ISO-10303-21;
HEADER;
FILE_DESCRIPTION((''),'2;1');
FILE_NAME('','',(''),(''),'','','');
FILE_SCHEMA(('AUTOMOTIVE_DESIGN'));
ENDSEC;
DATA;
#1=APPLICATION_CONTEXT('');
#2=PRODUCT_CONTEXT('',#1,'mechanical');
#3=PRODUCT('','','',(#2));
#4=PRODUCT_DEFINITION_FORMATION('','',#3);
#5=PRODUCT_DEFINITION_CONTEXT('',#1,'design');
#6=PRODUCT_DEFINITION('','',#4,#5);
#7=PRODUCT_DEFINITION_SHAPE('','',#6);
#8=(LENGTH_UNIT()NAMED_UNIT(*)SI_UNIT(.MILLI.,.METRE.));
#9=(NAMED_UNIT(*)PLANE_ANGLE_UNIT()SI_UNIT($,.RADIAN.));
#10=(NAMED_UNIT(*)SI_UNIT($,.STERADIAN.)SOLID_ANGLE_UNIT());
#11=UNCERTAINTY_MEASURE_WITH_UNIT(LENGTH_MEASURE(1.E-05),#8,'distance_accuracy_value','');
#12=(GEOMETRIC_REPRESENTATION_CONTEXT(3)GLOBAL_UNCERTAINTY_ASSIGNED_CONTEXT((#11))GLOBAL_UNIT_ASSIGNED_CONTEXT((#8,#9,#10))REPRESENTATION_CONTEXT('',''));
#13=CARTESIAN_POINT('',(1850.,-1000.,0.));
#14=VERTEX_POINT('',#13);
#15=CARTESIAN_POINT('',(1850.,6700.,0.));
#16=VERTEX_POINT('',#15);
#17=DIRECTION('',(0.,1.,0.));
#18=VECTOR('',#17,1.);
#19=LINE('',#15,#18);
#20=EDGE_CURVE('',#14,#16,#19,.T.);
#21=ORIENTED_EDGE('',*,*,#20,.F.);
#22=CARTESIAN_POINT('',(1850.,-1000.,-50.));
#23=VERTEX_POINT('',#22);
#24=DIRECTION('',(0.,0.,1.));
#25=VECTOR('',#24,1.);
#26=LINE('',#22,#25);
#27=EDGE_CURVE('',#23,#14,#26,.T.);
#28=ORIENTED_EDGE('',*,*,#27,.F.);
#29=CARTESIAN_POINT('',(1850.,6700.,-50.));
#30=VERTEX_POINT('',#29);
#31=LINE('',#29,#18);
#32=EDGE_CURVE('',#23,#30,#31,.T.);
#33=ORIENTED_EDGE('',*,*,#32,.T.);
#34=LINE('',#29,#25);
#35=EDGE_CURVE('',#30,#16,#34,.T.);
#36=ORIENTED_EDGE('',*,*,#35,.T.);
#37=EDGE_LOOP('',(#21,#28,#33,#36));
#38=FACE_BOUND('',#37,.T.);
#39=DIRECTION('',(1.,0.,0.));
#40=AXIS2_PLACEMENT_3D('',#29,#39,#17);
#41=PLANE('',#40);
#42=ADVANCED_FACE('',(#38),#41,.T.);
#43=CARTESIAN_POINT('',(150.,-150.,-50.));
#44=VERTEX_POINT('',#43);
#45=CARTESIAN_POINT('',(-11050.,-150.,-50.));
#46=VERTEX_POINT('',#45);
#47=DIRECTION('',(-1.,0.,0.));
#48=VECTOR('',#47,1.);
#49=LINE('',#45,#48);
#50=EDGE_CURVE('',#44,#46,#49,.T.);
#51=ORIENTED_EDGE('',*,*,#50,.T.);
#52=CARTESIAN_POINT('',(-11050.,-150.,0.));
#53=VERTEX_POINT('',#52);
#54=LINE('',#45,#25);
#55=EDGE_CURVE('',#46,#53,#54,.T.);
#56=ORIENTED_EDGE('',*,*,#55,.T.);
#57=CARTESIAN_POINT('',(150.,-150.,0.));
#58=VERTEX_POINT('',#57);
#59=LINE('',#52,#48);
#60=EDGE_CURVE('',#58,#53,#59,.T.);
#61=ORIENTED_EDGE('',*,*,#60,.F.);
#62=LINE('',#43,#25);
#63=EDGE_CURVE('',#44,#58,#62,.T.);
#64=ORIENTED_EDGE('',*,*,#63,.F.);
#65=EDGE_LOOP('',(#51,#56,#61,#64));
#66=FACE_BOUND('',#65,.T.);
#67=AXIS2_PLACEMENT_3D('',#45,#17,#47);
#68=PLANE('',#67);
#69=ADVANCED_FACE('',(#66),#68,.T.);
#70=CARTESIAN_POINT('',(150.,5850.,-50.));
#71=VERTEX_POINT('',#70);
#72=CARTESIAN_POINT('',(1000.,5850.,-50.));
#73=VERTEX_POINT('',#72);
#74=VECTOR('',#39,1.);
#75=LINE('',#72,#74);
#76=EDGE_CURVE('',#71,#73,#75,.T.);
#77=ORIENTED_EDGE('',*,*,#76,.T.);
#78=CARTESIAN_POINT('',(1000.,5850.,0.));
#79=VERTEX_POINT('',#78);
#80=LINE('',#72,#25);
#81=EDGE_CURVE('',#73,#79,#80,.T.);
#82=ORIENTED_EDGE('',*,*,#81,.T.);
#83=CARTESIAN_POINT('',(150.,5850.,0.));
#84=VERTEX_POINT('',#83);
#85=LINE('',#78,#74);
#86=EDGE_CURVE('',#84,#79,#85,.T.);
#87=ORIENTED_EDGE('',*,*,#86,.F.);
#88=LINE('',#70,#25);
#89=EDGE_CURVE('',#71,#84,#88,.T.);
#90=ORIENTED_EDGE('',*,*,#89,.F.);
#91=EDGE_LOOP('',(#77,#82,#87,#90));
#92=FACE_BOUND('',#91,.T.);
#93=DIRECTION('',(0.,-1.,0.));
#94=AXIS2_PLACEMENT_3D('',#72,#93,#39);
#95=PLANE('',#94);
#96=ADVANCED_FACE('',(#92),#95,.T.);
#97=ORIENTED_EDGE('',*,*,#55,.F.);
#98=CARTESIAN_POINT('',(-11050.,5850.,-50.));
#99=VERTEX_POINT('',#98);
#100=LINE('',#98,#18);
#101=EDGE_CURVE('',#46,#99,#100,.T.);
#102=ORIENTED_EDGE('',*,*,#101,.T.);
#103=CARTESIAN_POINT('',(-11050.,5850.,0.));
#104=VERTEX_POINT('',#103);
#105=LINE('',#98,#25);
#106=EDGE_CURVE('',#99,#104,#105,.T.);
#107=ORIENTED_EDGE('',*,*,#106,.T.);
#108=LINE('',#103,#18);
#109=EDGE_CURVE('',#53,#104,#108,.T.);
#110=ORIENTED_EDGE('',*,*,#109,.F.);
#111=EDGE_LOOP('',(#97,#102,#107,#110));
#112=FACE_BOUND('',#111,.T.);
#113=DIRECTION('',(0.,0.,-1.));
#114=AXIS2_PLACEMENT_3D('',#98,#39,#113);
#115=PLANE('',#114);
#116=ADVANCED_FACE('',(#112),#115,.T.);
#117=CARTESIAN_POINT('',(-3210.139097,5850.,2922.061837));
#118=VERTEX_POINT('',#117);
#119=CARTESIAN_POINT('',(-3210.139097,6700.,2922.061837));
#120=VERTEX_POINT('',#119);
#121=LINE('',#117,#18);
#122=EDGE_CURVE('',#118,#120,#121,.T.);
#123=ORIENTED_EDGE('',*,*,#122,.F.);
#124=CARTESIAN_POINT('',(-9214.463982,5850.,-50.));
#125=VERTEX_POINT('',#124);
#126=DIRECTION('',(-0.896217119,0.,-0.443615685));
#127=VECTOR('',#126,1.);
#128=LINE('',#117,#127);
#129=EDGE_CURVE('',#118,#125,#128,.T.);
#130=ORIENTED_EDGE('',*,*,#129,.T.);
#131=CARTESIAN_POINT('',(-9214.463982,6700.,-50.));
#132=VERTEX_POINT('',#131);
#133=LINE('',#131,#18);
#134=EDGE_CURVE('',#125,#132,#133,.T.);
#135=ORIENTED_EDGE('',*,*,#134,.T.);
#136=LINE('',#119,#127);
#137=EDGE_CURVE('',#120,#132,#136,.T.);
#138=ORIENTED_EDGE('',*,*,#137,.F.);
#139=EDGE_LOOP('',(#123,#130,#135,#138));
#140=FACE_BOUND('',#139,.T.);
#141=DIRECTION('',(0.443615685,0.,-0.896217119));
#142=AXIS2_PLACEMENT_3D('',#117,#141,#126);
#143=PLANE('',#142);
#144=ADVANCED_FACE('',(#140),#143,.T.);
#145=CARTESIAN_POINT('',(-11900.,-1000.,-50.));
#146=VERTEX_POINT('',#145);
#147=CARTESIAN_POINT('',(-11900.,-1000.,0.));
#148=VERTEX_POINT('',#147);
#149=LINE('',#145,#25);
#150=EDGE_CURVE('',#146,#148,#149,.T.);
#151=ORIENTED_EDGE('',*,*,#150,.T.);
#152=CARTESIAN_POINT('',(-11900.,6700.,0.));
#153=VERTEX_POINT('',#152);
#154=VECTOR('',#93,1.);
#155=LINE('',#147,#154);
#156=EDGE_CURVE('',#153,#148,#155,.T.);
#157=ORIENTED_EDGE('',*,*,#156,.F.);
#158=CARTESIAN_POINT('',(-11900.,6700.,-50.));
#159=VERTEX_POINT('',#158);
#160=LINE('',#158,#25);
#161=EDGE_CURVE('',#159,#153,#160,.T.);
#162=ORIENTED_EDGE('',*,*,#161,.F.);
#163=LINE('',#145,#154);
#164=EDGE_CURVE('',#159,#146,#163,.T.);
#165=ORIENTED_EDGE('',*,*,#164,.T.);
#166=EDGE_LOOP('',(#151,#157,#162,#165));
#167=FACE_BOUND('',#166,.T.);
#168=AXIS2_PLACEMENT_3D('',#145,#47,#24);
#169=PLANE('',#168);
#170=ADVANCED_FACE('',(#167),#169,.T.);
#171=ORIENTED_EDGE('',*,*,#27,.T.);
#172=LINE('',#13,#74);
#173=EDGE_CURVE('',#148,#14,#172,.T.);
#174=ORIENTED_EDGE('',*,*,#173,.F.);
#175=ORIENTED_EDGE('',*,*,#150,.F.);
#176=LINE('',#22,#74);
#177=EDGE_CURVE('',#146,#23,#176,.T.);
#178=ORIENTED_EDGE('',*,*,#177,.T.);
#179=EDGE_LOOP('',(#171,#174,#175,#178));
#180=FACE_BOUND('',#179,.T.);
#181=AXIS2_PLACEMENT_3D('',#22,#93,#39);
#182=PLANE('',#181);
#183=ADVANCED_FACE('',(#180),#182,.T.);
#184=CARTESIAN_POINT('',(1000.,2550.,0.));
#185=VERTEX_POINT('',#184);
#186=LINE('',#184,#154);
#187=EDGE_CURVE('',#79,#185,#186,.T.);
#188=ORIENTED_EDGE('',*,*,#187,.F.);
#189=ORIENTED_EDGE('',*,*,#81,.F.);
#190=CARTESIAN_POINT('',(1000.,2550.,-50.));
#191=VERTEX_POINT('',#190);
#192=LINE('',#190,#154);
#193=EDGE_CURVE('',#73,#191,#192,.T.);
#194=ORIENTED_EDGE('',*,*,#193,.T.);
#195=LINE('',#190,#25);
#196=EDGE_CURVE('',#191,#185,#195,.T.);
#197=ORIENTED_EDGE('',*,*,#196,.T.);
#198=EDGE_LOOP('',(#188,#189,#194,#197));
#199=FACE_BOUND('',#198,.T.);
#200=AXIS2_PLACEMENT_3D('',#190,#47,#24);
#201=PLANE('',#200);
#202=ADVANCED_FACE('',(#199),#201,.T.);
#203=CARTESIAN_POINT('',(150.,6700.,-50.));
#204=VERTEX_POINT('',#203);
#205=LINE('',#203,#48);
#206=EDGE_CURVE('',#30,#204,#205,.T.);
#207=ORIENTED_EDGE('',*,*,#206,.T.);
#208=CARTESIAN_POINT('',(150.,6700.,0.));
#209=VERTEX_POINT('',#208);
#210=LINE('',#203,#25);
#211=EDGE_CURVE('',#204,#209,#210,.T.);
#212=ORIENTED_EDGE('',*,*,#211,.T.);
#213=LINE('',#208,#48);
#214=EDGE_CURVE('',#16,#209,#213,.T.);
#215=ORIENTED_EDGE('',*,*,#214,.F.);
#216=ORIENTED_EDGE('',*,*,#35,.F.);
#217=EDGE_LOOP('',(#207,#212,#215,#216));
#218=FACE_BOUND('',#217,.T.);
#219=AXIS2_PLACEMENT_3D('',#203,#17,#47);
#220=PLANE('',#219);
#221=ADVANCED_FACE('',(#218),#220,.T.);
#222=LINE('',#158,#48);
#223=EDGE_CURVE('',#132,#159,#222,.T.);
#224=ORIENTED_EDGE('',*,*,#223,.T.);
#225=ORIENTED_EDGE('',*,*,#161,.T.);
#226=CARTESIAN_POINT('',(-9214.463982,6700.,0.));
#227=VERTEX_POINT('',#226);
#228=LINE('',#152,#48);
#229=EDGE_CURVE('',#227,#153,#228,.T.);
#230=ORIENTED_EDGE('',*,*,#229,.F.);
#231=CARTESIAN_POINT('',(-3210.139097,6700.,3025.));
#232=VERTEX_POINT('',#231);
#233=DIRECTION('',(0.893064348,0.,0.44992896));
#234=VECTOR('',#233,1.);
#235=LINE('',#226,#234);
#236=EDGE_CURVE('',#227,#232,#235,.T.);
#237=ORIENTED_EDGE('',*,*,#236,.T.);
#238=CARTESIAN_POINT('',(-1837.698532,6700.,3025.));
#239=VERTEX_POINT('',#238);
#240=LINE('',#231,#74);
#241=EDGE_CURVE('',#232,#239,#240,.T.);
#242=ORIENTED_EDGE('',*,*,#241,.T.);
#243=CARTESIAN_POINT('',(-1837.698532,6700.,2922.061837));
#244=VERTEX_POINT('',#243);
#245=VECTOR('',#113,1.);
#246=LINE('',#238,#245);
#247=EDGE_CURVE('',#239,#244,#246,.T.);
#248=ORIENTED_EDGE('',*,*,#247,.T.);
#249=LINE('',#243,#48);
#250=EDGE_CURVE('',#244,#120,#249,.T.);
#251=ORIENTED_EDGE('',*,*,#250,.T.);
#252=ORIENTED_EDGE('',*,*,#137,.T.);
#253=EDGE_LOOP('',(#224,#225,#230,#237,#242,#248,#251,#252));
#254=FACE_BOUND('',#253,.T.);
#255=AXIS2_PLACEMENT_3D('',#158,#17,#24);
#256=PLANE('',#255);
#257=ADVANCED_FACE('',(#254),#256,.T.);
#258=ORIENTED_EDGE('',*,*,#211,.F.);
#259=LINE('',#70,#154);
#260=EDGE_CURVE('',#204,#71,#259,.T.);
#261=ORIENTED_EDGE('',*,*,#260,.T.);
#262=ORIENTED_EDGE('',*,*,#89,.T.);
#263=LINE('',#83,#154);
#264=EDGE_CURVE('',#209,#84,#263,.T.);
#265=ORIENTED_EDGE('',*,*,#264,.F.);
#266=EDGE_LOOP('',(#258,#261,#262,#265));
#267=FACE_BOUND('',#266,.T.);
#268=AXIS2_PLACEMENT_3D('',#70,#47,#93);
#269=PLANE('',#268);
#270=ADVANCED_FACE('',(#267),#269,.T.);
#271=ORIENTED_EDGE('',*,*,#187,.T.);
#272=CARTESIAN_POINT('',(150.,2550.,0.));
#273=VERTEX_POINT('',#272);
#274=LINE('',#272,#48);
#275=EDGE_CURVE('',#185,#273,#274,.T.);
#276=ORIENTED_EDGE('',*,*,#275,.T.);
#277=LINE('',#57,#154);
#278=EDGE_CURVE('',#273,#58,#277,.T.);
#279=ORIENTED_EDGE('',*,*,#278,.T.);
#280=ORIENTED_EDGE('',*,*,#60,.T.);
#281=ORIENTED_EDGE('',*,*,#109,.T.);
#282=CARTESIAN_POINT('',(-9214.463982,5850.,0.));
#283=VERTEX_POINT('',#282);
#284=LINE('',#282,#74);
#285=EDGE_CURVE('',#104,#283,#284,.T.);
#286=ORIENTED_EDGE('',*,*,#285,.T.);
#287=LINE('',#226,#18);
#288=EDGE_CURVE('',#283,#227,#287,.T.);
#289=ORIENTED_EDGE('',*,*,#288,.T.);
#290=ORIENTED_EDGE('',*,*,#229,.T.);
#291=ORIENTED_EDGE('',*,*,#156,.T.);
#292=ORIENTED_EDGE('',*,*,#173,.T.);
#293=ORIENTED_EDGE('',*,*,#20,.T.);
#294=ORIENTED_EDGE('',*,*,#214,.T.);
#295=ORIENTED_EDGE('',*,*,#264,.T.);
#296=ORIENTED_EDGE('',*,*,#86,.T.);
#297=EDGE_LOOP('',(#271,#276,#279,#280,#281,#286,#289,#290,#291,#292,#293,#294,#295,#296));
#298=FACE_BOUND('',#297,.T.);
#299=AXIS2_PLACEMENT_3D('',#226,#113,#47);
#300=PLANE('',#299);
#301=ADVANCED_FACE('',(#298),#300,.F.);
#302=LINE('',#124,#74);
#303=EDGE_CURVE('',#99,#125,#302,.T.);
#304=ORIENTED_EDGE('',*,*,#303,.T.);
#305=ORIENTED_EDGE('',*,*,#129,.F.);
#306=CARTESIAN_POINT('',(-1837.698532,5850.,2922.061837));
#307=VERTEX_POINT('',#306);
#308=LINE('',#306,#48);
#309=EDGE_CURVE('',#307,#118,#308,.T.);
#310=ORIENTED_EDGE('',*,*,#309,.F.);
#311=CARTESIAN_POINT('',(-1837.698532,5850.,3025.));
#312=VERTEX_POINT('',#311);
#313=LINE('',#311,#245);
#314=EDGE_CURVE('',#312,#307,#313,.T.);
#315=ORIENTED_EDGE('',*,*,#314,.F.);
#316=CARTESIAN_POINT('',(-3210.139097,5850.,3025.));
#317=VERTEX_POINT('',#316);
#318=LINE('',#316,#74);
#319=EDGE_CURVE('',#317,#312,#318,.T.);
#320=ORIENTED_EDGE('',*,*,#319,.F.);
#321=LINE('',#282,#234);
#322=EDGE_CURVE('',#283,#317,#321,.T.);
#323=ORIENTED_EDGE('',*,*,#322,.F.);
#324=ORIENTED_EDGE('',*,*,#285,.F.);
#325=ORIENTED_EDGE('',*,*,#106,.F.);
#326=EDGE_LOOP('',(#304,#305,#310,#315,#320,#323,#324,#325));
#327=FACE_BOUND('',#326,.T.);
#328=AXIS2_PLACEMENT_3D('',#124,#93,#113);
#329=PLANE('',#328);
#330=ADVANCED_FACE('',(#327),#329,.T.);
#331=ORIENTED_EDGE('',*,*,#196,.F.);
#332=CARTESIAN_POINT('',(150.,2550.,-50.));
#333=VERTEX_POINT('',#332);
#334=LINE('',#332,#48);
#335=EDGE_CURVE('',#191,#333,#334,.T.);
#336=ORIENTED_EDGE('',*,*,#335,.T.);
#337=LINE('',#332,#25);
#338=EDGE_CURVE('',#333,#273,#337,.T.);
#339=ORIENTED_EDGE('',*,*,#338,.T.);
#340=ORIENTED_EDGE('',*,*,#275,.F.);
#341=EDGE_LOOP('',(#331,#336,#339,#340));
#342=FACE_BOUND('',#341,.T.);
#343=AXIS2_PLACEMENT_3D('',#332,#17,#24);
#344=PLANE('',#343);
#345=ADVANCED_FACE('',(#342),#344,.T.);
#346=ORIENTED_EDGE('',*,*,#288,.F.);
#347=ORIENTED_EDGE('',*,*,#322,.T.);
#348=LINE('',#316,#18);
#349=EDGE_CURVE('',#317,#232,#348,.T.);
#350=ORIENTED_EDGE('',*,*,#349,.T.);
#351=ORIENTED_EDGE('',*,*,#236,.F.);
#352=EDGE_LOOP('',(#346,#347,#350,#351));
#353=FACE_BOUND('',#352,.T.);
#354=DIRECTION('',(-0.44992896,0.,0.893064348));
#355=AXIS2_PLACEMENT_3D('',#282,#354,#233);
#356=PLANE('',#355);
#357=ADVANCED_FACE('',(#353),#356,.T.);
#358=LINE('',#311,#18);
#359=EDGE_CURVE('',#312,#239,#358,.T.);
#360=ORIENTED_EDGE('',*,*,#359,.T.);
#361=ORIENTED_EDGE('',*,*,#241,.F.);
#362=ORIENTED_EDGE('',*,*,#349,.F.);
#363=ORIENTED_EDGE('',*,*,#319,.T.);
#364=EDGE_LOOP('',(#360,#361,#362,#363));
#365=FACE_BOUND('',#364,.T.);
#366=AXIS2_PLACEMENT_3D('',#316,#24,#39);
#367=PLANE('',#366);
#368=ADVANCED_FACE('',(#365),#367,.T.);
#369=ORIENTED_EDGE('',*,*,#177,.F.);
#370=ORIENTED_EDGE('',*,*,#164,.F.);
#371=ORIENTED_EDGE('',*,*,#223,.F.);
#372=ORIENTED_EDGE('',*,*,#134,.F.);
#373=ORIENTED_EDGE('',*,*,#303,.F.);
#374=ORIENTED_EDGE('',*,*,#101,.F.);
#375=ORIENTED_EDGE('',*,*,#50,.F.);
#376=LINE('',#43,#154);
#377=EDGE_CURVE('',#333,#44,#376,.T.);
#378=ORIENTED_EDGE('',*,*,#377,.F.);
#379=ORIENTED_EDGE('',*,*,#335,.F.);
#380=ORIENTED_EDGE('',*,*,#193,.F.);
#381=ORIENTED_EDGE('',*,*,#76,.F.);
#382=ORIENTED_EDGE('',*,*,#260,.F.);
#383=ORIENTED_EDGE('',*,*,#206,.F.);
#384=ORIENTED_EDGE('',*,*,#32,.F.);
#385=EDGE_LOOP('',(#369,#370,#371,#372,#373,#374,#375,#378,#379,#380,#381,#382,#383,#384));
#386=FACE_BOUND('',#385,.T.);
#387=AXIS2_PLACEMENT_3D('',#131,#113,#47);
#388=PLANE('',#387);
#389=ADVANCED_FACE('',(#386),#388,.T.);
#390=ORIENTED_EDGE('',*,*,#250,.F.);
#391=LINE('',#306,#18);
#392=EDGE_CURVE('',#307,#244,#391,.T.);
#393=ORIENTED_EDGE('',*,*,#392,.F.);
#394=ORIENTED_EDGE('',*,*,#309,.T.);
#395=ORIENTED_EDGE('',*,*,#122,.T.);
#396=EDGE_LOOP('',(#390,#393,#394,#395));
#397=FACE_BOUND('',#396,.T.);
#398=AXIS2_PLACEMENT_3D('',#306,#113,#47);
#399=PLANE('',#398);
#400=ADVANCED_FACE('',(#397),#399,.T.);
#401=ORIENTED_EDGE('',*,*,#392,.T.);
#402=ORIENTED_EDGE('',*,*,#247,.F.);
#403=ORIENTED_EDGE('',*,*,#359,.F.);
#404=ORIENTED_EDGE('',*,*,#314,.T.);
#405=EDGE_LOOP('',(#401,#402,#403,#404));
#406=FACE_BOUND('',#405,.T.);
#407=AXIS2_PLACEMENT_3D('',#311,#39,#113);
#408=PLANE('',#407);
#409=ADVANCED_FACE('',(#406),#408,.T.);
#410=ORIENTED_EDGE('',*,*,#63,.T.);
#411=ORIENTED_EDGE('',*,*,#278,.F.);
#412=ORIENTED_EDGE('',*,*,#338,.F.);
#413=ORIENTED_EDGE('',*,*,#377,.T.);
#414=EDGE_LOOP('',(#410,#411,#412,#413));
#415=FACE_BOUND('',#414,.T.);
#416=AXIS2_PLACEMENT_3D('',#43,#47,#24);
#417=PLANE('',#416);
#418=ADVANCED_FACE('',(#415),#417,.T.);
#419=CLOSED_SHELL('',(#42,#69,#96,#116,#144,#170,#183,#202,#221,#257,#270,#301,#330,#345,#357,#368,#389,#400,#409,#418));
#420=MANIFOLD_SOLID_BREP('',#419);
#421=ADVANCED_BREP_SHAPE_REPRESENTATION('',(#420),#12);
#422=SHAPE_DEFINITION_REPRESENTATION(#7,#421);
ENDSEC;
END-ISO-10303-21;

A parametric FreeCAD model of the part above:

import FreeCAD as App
import Part
import Sketcher

V = App.Vector


def add_polygon(sketch, points):
    """Adds a closed chain of lines whose ends are joined by coincident constraints."""
    first, n = sketch.GeometryCount, len(points)
    for a, b in zip(points, points[1:] + points[:1]):
        sketch.addGeometry(Part.LineSegment(App.Vector(*a, 0), App.Vector(*b, 0)), False)
    for i in range(n):
        sketch.addConstraint(Sketcher.Constraint("Coincident", first + i, 2, first + (i + 1) % n, 1))

doc = App.newDocument("Part")
body = doc.addObject("PartDesign::Body", "Body")

# Sketch on XY plane
sketch1 = body.newObject("Sketcher::SketchObject", "Sketch")
sketch1.AttachmentSupport = (doc.getObject("XY_Plane"), [""])
sketch1.MapMode = "FlatFace"
add_polygon(sketch1, [(-9214.463982, 5850), (-9214.463982, 6700), (-11900, 6700), (-11900, -1000), (1850, -1000), (1850, 6700), (150, 6700), (150, 5850), (1000, 5850), (1000, 2550), (150, 2550), (150, -150), (-11050, -150), (-11050, 5850)])  # lines 0-13
sketch1.addConstraint(Sketcher.Constraint("Vertical", 0))
sketch1.addConstraint(Sketcher.Constraint("Horizontal", 1))
sketch1.addConstraint(Sketcher.Constraint("Vertical", 2))
sketch1.addConstraint(Sketcher.Constraint("Horizontal", 3))
sketch1.addConstraint(Sketcher.Constraint("Vertical", 4))
sketch1.addConstraint(Sketcher.Constraint("Horizontal", 5))
sketch1.addConstraint(Sketcher.Constraint("Vertical", 6))
sketch1.addConstraint(Sketcher.Constraint("Horizontal", 7))
sketch1.addConstraint(Sketcher.Constraint("Vertical", 8))
sketch1.addConstraint(Sketcher.Constraint("Horizontal", 9))
sketch1.addConstraint(Sketcher.Constraint("Vertical", 10))
sketch1.addConstraint(Sketcher.Constraint("Horizontal", 11))
sketch1.addConstraint(Sketcher.Constraint("Vertical", 12))
sketch1.addConstraint(Sketcher.Constraint("Horizontal", 13))
sketch1.addConstraint(Sketcher.Constraint("Horizontal", 1, 2, 4, 2))
sketch1.addConstraint(Sketcher.Constraint("Horizontal", 7, 2, 12, 2))
sketch1.addConstraint(Sketcher.Constraint("Vertical", 6, 2, 9, 2))
sketch1.addConstraint(Sketcher.Constraint("Equal", 9, 0))
sketch1.addConstraint(Sketcher.Constraint("DistanceX", 3, 1, 3, 2, 13750.0))
sketch1.addConstraint(Sketcher.Constraint("DistanceX", 5, 2, 5, 1, 1700.0))
sketch1.addConstraint(Sketcher.Constraint("DistanceX", 7, 1, 7, 2, 850.0))
sketch1.addConstraint(Sketcher.Constraint("DistanceX", 11, 2, 11, 1, 11200.0))
sketch1.addConstraint(Sketcher.Constraint("DistanceY", 2, 2, 2, 1, 7700.0))
sketch1.addConstraint(Sketcher.Constraint("DistanceY", 8, 2, 8, 1, 3300.0))
sketch1.addConstraint(Sketcher.Constraint("DistanceY", 10, 2, 10, 1, 2700.0))
sketch1.addConstraint(Sketcher.Constraint("DistanceY", -1, 1, 0, 2, 6700.0))
sketch1.addConstraint(Sketcher.Constraint("DistanceX", 1, 2, -1, 1, 11900.0))
sketch1.addConstraint(Sketcher.Constraint("DistanceX", 1, 2, 1, 1, 2685.536018))
pad1 = body.newObject("PartDesign::Pad", "Pad")
pad1.Profile = sketch1
pad1.Length = 50
pad1.Reversed = True

# Sketch on XZ plane
sketch2 = body.newObject("Sketcher::SketchObject", "Sketch001")
sketch2.AttachmentSupport = (doc.getObject("XZ_Plane"), [""])
sketch2.MapMode = "FlatFace"
sketch2.AttachmentOffset = App.Placement(V(0, 0, -6700), App.Rotation())
add_polygon(sketch2, [(-9214.463982, 0), (-3210.139097, 3025), (-1837.698532, 3025), (-1837.698532, 2922.061837), (-3210.139097, 2922.061837), (-9214.463982, -50)])  # lines 0-5
sketch2.addConstraint(Sketcher.Constraint("Horizontal", 1))
sketch2.addConstraint(Sketcher.Constraint("Vertical", 2))
sketch2.addConstraint(Sketcher.Constraint("Horizontal", 3))
sketch2.addConstraint(Sketcher.Constraint("Vertical", 5))
sketch2.addConstraint(Sketcher.Constraint("PointOnObject", 5, 2, -1))
sketch2.addConstraint(Sketcher.Constraint("Vertical", 0, 2, 3, 2))
sketch2.addConstraint(Sketcher.Constraint("DistanceY", 5, 1, 5, 2, 50.0))
sketch2.addConstraint(Sketcher.Constraint("DistanceY", -1, 1, 0, 2, 3025.0))
sketch2.addConstraint(Sketcher.Constraint("DistanceX", 1, 1, 1, 2, 1372.440565))
sketch2.addConstraint(Sketcher.Constraint("DistanceY", 2, 2, 2, 1, 102.938163))
sketch2.addConstraint(Sketcher.Constraint("DistanceX", 4, 2, 2, 2, 7376.76545))
sketch2.addConstraint(Sketcher.Constraint("DistanceX", 0, 2, -1, 1, 3210.139097))
pad2 = body.newObject("PartDesign::Pad", "Pad001")
pad2.Profile = sketch2
pad2.Length = 850

doc.recompute()
